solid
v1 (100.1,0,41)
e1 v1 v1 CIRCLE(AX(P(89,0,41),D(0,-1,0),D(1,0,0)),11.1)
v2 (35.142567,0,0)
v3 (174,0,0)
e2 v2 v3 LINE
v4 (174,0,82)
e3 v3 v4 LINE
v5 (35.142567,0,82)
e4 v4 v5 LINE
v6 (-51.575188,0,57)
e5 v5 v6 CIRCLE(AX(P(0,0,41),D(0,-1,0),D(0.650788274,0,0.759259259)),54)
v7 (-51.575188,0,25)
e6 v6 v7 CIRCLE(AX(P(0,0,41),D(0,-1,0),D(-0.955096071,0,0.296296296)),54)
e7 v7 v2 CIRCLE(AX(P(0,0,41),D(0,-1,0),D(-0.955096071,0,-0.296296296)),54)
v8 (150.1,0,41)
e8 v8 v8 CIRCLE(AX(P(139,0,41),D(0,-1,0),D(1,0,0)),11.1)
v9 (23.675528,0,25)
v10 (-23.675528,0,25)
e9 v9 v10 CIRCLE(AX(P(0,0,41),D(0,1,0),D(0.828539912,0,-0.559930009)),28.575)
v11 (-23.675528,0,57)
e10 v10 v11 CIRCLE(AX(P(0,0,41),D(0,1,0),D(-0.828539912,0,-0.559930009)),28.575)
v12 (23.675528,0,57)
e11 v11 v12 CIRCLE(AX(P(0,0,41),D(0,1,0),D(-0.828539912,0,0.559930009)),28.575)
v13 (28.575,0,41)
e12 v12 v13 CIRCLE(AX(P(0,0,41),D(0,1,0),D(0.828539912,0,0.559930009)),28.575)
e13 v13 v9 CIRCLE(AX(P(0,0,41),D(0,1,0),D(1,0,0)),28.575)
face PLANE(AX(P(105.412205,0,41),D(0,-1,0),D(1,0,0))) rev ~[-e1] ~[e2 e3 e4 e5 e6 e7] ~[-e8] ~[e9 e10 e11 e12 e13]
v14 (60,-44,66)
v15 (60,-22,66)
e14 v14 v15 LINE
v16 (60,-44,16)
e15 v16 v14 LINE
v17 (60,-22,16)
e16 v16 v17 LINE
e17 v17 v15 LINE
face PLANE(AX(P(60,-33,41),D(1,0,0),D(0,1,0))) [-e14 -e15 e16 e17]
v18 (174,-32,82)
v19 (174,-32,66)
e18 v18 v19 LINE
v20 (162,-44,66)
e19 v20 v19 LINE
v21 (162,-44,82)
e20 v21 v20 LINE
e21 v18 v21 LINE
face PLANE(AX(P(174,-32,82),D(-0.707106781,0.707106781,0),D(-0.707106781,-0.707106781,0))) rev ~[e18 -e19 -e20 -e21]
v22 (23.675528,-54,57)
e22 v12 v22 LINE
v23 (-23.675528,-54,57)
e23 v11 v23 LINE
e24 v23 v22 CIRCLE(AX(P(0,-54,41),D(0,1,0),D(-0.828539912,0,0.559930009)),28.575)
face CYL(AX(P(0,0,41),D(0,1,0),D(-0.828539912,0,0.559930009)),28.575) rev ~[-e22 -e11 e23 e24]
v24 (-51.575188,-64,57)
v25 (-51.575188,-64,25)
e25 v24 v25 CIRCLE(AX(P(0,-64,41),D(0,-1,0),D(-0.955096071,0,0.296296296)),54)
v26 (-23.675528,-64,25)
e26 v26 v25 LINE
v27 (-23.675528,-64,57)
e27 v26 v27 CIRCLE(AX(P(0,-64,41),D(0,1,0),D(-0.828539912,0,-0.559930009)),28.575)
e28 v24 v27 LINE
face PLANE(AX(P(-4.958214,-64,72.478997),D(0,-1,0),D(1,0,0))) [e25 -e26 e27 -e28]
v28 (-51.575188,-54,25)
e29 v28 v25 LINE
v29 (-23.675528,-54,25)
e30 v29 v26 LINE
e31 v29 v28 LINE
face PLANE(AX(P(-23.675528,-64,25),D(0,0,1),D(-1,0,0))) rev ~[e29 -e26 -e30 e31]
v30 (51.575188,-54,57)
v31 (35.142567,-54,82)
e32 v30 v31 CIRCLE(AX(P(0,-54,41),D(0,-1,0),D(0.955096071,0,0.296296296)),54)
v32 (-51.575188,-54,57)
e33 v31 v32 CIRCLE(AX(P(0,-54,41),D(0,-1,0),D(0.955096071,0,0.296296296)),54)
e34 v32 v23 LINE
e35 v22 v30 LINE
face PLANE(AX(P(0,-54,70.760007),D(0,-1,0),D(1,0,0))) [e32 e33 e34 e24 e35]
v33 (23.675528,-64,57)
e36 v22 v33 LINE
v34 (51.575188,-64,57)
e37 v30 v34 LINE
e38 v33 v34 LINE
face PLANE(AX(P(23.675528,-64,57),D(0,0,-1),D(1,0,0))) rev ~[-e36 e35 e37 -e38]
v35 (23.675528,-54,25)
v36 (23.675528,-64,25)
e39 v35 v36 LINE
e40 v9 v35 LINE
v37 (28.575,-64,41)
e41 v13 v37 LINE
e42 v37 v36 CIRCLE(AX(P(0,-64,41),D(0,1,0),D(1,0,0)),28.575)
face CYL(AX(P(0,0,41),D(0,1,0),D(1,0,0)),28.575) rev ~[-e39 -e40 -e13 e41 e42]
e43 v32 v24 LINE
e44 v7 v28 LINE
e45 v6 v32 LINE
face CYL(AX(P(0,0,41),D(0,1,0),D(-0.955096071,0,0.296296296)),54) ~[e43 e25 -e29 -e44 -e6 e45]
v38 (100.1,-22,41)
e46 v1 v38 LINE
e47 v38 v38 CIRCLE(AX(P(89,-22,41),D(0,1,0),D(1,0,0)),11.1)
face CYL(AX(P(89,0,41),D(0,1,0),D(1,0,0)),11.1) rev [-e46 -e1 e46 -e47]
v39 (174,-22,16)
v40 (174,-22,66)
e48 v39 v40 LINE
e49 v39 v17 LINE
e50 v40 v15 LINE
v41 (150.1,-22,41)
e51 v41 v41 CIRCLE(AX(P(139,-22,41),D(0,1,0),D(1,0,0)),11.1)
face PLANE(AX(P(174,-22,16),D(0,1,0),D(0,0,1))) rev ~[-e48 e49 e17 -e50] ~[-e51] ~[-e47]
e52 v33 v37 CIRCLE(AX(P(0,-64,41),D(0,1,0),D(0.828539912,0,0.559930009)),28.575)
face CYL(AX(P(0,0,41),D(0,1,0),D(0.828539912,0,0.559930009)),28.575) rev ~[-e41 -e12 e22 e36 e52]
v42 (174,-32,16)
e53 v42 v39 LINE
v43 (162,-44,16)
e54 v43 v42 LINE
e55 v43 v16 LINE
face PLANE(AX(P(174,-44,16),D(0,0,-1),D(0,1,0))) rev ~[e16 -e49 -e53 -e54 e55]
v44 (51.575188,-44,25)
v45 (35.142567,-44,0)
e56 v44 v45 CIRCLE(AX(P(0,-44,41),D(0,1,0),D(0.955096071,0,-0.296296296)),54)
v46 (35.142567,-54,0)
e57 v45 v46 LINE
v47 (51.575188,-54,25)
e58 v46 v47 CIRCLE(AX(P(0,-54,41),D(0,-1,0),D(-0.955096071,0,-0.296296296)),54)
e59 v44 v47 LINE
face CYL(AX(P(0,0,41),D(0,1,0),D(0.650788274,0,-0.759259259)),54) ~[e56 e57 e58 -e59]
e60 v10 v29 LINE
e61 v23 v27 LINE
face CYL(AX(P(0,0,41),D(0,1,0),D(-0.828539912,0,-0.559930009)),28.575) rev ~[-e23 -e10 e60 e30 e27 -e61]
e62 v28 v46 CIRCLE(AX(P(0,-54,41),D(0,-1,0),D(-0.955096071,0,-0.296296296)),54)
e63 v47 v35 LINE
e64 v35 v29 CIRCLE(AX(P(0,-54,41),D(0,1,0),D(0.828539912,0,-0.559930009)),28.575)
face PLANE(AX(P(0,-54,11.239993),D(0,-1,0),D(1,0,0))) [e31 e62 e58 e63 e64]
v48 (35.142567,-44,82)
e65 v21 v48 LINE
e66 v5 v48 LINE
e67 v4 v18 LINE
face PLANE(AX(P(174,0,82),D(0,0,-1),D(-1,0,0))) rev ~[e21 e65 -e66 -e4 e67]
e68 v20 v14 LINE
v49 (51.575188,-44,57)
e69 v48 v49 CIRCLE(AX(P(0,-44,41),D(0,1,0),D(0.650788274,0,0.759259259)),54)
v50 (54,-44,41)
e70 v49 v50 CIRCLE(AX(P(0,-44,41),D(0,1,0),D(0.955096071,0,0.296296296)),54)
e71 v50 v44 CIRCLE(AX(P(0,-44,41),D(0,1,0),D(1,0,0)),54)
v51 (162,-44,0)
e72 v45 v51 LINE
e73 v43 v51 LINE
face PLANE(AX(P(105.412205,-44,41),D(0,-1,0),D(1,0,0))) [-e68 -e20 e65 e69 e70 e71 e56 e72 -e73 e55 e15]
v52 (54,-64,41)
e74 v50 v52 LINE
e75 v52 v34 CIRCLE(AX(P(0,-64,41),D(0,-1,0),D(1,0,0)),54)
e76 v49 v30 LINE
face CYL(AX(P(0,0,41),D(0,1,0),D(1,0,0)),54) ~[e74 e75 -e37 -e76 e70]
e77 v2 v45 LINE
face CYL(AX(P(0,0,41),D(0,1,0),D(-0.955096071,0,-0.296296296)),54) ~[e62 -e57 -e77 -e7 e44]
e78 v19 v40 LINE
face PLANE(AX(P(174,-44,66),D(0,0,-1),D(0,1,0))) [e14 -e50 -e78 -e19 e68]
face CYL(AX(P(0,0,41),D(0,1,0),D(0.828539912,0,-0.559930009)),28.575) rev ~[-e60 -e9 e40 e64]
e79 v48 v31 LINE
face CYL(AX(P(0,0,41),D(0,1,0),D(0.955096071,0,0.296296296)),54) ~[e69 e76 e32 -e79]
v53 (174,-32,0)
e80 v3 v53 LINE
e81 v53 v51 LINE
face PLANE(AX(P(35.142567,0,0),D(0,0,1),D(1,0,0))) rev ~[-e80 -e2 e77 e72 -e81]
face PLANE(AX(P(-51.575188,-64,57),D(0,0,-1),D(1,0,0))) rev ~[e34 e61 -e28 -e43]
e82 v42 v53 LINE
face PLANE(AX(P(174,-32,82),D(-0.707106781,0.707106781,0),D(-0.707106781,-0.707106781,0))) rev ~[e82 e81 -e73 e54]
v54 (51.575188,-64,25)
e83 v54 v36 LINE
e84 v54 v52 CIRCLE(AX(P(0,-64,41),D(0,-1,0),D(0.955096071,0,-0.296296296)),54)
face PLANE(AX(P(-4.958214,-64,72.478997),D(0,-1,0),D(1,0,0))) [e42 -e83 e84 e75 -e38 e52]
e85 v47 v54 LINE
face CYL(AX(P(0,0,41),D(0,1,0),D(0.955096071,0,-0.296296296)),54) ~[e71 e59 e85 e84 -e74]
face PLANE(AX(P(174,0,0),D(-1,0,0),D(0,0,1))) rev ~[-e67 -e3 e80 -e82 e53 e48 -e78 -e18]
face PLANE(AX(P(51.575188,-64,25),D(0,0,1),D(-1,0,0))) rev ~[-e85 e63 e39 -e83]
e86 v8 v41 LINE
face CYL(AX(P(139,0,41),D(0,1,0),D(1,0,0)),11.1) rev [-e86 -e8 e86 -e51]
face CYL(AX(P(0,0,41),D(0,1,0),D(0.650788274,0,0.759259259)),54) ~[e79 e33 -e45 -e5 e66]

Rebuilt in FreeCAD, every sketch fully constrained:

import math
import FreeCAD as App
import Part
import Sketcher

V = App.Vector
Q = App.Units.Quantity

doc = App.newDocument("Part")
body = doc.addObject("PartDesign::Body", "Body")

# Sketch on XZ plane
sketch1 = body.newObject("Sketcher::SketchObject", "Sketch")
sketch1.AttachmentSupport = (doc.getObject("XZ_Plane"), [""])
sketch1.MapMode = "FlatFace"
sketch1.addGeometry([
    Part.ArcOfCircle(Part.Circle(V(0, 41, 0), V(0, 0, 1), 54), math.radians(0), math.radians(17.24)),  # 0
    Part.ArcOfCircle(Part.Circle(V(0, 41, 0), V(0, 0, 1), 54), math.radians(-17.24), math.radians(0)),  # 1
    Part.ArcOfCircle(Part.Circle(V(0, 41, 0), V(0, 0, 1), 54), math.radians(-49), math.radians(-17)),  # 2
    Part.LineSegment(V(35, 0, 0), V(174, 0, 0)),  # 3
    Part.LineSegment(V(174, 0, 0), V(174, 82, 0)),  # 4
    Part.LineSegment(V(174, 82, 0), V(35, 82, 0)),  # 5
    Part.ArcOfCircle(Part.Circle(V(0, 41, 0), V(0, 0, 1), 54), math.radians(17), math.radians(49)),  # 6
    Part.Circle(V(89, 41, 0), V(0, 0, 1), 11),  # 7
    Part.Circle(V(139, 41, 0), V(0, 0, 1), 11),  # 8
], False)
sketch1.addConstraint([
    Sketcher.Constraint("Tangent", 0, 1, 1, 2),
    Sketcher.Constraint("Tangent", 1, 1, 2, 2),
    Sketcher.Constraint("Coincident", 2, 1, 3, 1),
    Sketcher.Constraint("Coincident", 3, 2, 4, 1),
    Sketcher.Constraint("Coincident", 4, 2, 5, 1),
    Sketcher.Constraint("Coincident", 5, 2, 6, 2),
    Sketcher.Constraint("Tangent", 6, 1, 0, 2),
    Sketcher.Constraint("Horizontal", 3),
    Sketcher.Constraint("Vertical", 4),
    Sketcher.Constraint("Horizontal", 5),
    Sketcher.Constraint("Coincident", 2, 3, 0, 3),
    Sketcher.Constraint("Equal", 2, 6),
    Sketcher.Constraint("Equal", 7, 8),
    Sketcher.Constraint("PointOnObject", 0, 3, -2),
    Sketcher.Constraint("PointOnObject", 2, 1, -1),
    Sketcher.Constraint("Horizontal", 6, 3, 7, 3),
    Sketcher.Constraint("Horizontal", 7, 3, 8, 3),
    Sketcher.Constraint("Horizontal", 8, 3, 0, 1),
    Sketcher.Constraint("Vertical", 2, 1, 5, 2),
    Sketcher.Constraint("Vertical", 1, 1, 6, 1),
    Sketcher.Constraint("Radius", 0, Q("54 mm")),
    Sketcher.Constraint("Diameter", 7, Q("22.2 mm")),
    Sketcher.Constraint("DistanceY", 4, 1, 4, 2, Q("82 mm")),
    Sketcher.Constraint("DistanceX", -1, 1, 7, 3, Q("89 mm")),
    Sketcher.Constraint("DistanceX", -1, 1, 8, 3, Q("139 mm")),
    Sketcher.Constraint("DistanceY", -1, 1, 1, 1, Q("25 mm")),
    Sketcher.Constraint("DistanceX", -1, 1, 3, 2, Q("174 mm")),
])
pad1 = body.newObject("PartDesign::Pad", "Pad")
pad1.Profile = sketch1
pad1.Length = 44

# Sketch on XZ plane
sketch2 = body.newObject("Sketcher::SketchObject", "Sketch001")
sketch2.AttachmentSupport = (doc.getObject("XZ_Plane"), [""])
sketch2.MapMode = "FlatFace"
sketch2.addGeometry([
    Part.ArcOfCircle(Part.Circle(V(0, 41, 0), V(0, 0, 1), 54), math.radians(-17.24), math.radians(0)),  # 0
    Part.ArcOfCircle(Part.Circle(V(0, 41, 0), V(0, 0, 1), 54), math.radians(0), math.radians(17.24)),  # 1
    Part.ArcOfCircle(Part.Circle(V(0, 41, 0), V(0, 0, 1), 54), math.radians(17), math.radians(49)),  # 2
    Part.ArcOfCircle(Part.Circle(V(0, 41, 0), V(0, 0, 1), 54), math.radians(49), math.radians(163)),  # 3
    Part.ArcOfCircle(Part.Circle(V(0, 41, 0), V(0, 0, 1), 54), math.radians(163), math.radians(197)),  # 4
    Part.ArcOfCircle(Part.Circle(V(0, 41, 0), V(0, 0, 1), 54), math.radians(-163), math.radians(-49)),  # 5
    Part.ArcOfCircle(Part.Circle(V(0, 41, 0), V(0, 0, 1), 54), math.radians(-49), math.radians(-17)),  # 6
    Part.ArcOfCircle(Part.Circle(V(0, 41, 0), V(0, 0, 1), 29), math.radians(-34), math.radians(0)),  # 7
    Part.ArcOfCircle(Part.Circle(V(0, 41, 0), V(0, 0, 1), 29), math.radians(-146), math.radians(-34)),  # 8
    Part.ArcOfCircle(Part.Circle(V(0, 41, 0), V(0, 0, 1), 29), math.radians(146), math.radians(214)),  # 9
    Part.ArcOfCircle(Part.Circle(V(0, 41, 0), V(0, 0, 1), 29), math.radians(34), math.radians(146)),  # 10
    Part.ArcOfCircle(Part.Circle(V(0, 41, 0), V(0, 0, 1), 29), math.radians(0), math.radians(34)),  # 11
], False)
sketch2.addConstraint([
    Sketcher.Constraint("Tangent", 0, 2, 1, 1),
    Sketcher.Constraint("Tangent", 1, 2, 2, 1),
    Sketcher.Constraint("Tangent", 2, 2, 3, 1),
    Sketcher.Constraint("Tangent", 3, 2, 4, 1),
    Sketcher.Constraint("Tangent", 4, 2, 5, 1),
    Sketcher.Constraint("Tangent", 5, 2, 6, 1),
    Sketcher.Constraint("Tangent", 6, 2, 0, 1),
    Sketcher.Constraint("Tangent", 7, 1, 8, 2),
    Sketcher.Constraint("Tangent", 8, 1, 9, 2),
    Sketcher.Constraint("Tangent", 9, 1, 10, 2),
    Sketcher.Constraint("Tangent", 10, 1, 11, 2),
    Sketcher.Constraint("Tangent", 11, 1, 7, 2),
    Sketcher.Constraint("Coincident", 2, 3, 0, 3),
    Sketcher.Constraint("Coincident", 4, 3, 0, 3),
    Sketcher.Constraint("Coincident", 7, 3, 0, 3),
    Sketcher.Constraint("Coincident", 9, 3, 0, 3),
    Sketcher.Constraint("Symmetric", 1, 2, 3, 2, -2),
    Sketcher.Constraint("PointOnObject", 5, 2, -1),
    Sketcher.Constraint("Horizontal", 11, 3, 0, 2),
    Sketcher.Constraint("Horizontal", 4, 2, 6, 2),
    Sketcher.Constraint("Horizontal", 6, 2, 7, 1),
    Sketcher.Constraint("Horizontal", 7, 1, 8, 1),
    Sketcher.Constraint("Horizontal", 3, 2, 9, 1),
    Sketcher.Constraint("Horizontal", 9, 1, 10, 1),
    Sketcher.Constraint("Horizontal", 0, 2, 11, 1),
    Sketcher.Constraint("Vertical", 3, 2, 4, 2),
    Sketcher.Constraint("Vertical", 2, 2, 5, 2),
    Sketcher.Constraint("Radius", 0, Q("54 mm")),
    Sketcher.Constraint("DistanceY", -1, 1, 0, 3, Q("41 mm")),
    Sketcher.Constraint("DistanceY", -1, 1, 1, 2, Q("57 mm")),
    Sketcher.Constraint("Radius", 7, Q("28.575 mm")),
])
pad2 = body.newObject("PartDesign::Pad", "Pad001")
pad2.Profile = sketch2
pad2.Length = 64

# Sketch on YZ plane
sketch3 = body.newObject("Sketcher::SketchObject", "Sketch002")
sketch3.AttachmentSupport = (doc.getObject("YZ_Plane"), [""])
sketch3.MapMode = "FlatFace"
sketch3.AttachmentOffset = App.Placement(V(0, 0, 174), App.Rotation())
sketch3.addGeometry([
    Part.LineSegment(V(-44, 66, 0), V(-44, 16, 0)),
    Part.LineSegment(V(-44, 16, 0), V(-22, 16, 0)),
    Part.LineSegment(V(-22, 16, 0), V(-22, 66, 0)),
    Part.LineSegment(V(-22, 66, 0), V(-44, 66, 0)),
], False)
sketch3.addConstraint([
    Sketcher.Constraint("Coincident", 0, 2, 1, 1),
    Sketcher.Constraint("Coincident", 1, 2, 2, 1),
    Sketcher.Constraint("Coincident", 2, 2, 3, 1),
    Sketcher.Constraint("Coincident", 3, 2, 0, 1),
    Sketcher.Constraint("Vertical", 0),
    Sketcher.Constraint("Horizontal", 1),
    Sketcher.Constraint("Vertical", 2),
    Sketcher.Constraint("Horizontal", 3),
    Sketcher.Constraint("DistanceX", 1, 1, 1, 2, Q("22 mm")),
    Sketcher.Constraint("DistanceY", 0, 2, 0, 1, Q("50 mm")),
    Sketcher.Constraint("DistanceX", 0, 2, -1, 1, Q("44 mm")),
    Sketcher.Constraint("DistanceY", -1, 1, 0, 2, Q("16 mm")),
])
pocket1 = body.newObject("PartDesign::Pocket", "Pocket")
pocket1.Profile = sketch3
pocket1.Length = 114

# Sketch on XY plane
sketch4 = body.newObject("Sketcher::SketchObject", "Sketch003")
sketch4.AttachmentSupport = (doc.getObject("XY_Plane"), [""])
sketch4.MapMode = "FlatFace"
sketch4.AttachmentOffset = App.Placement(V(0, 0, 82), App.Rotation())
sketch4.addGeometry([
    Part.LineSegment(V(174, -44, 0), V(174, -32, 0)),
    Part.LineSegment(V(174, -32, 0), V(162, -44, 0)),
    Part.LineSegment(V(162, -44, 0), V(174, -44, 0)),
], False)
sketch4.addConstraint([
    Sketcher.Constraint("Coincident", 0, 2, 1, 1),
    Sketcher.Constraint("Coincident", 1, 2, 2, 1),
    Sketcher.Constraint("Coincident", 2, 2, 0, 1),
    Sketcher.Constraint("Vertical", 0),
    Sketcher.Constraint("Horizontal", 2),
    Sketcher.Constraint("Equal", 2, 0),
    Sketcher.Constraint("DistanceX", 2, 1, 2, 2, Q("12 mm")),
    Sketcher.Constraint("DistanceX", -1, 1, 0, 2, Q("174 mm")),
    Sketcher.Constraint("DistanceY", 0, 2, -1, 1, Q("32 mm")),
])
pocket2 = body.newObject("PartDesign::Pocket", "Pocket001")
pocket2.Profile = sketch4
pocket2.Type = "ThroughAll"

# Sketch on XZ plane
sketch5 = body.newObject("Sketcher::SketchObject", "Sketch004")
sketch5.AttachmentSupport = (doc.getObject("XZ_Plane"), [""])
sketch5.MapMode = "FlatFace"
sketch5.AttachmentOffset = App.Placement(V(0, 0, 64), App.Rotation())
sketch5.addGeometry([
    Part.ArcOfCircle(Part.Circle(V(0, 41, 0), V(0, 0, 1), 54), math.radians(17), math.radians(163)),  # 0
    Part.LineSegment(V(-52, 57, 0), V(-24, 57, 0)),  # 1
    Part.ArcOfCircle(Part.Circle(V(0, 41, 0), V(0, 0, 1), 29), math.radians(34), math.radians(146)),  # 2
    Part.LineSegment(V(24, 57, 0), V(52, 57, 0)),  # 3
    Part.LineSegment(V(-24, 25, 0), V(-52, 25, 0)),  # 4
    Part.ArcOfCircle(Part.Circle(V(0, 41, 0), V(0, 0, 1), 54), math.radians(-163), math.radians(-17)),  # 5
    Part.LineSegment(V(52, 25, 0), V(24, 25, 0)),  # 6
    Part.ArcOfCircle(Part.Circle(V(0, 41, 0), V(0, 0, 1), 29), math.radians(-146), math.radians(-34)),  # 7
], False)
sketch5.addConstraint([
    Sketcher.Constraint("Coincident", 0, 2, 1, 1),
    Sketcher.Constraint("Coincident", 1, 2, 2, 2),
    Sketcher.Constraint("Coincident", 2, 1, 3, 1),
    Sketcher.Constraint("Coincident", 3, 2, 0, 1),
    Sketcher.Constraint("Coincident", 4, 2, 5, 1),
    Sketcher.Constraint("Coincident", 5, 2, 6, 1),
    Sketcher.Constraint("Coincident", 6, 2, 7, 2),
    Sketcher.Constraint("Coincident", 7, 1, 4, 1),
    Sketcher.Constraint("Horizontal", 1),
    Sketcher.Constraint("Horizontal", 3),
    Sketcher.Constraint("Horizontal", 4),
    Sketcher.Constraint("Horizontal", 6),
    Sketcher.Constraint("Coincident", 2, 3, 0, 3),
    Sketcher.Constraint("Coincident", 5, 3, 0, 3),
    Sketcher.Constraint("Coincident", 7, 3, 0, 3),
    Sketcher.Constraint("Equal", 0, 5),
    Sketcher.Constraint("Equal", 2, 7),
    Sketcher.Constraint("Symmetric", 1, 2, 2, 1, -2),
    Sketcher.Constraint("Horizontal", 4, 2, 5, 2),
    Sketcher.Constraint("Vertical", 0, 2, 4, 2),
    Sketcher.Constraint("Radius", 0, Q("54 mm")),
    Sketcher.Constraint("DistanceY", -1, 1, 0, 3, Q("41 mm")),
    Sketcher.Constraint("DistanceY", -1, 1, 0, 2, Q("57 mm")),
    Sketcher.Constraint("Radius", 2, Q("28.575 mm")),
])
pocket3 = body.newObject("PartDesign::Pocket", "Pocket002")
pocket3.Profile = sketch5
pocket3.Length = 10

doc.recompute()
